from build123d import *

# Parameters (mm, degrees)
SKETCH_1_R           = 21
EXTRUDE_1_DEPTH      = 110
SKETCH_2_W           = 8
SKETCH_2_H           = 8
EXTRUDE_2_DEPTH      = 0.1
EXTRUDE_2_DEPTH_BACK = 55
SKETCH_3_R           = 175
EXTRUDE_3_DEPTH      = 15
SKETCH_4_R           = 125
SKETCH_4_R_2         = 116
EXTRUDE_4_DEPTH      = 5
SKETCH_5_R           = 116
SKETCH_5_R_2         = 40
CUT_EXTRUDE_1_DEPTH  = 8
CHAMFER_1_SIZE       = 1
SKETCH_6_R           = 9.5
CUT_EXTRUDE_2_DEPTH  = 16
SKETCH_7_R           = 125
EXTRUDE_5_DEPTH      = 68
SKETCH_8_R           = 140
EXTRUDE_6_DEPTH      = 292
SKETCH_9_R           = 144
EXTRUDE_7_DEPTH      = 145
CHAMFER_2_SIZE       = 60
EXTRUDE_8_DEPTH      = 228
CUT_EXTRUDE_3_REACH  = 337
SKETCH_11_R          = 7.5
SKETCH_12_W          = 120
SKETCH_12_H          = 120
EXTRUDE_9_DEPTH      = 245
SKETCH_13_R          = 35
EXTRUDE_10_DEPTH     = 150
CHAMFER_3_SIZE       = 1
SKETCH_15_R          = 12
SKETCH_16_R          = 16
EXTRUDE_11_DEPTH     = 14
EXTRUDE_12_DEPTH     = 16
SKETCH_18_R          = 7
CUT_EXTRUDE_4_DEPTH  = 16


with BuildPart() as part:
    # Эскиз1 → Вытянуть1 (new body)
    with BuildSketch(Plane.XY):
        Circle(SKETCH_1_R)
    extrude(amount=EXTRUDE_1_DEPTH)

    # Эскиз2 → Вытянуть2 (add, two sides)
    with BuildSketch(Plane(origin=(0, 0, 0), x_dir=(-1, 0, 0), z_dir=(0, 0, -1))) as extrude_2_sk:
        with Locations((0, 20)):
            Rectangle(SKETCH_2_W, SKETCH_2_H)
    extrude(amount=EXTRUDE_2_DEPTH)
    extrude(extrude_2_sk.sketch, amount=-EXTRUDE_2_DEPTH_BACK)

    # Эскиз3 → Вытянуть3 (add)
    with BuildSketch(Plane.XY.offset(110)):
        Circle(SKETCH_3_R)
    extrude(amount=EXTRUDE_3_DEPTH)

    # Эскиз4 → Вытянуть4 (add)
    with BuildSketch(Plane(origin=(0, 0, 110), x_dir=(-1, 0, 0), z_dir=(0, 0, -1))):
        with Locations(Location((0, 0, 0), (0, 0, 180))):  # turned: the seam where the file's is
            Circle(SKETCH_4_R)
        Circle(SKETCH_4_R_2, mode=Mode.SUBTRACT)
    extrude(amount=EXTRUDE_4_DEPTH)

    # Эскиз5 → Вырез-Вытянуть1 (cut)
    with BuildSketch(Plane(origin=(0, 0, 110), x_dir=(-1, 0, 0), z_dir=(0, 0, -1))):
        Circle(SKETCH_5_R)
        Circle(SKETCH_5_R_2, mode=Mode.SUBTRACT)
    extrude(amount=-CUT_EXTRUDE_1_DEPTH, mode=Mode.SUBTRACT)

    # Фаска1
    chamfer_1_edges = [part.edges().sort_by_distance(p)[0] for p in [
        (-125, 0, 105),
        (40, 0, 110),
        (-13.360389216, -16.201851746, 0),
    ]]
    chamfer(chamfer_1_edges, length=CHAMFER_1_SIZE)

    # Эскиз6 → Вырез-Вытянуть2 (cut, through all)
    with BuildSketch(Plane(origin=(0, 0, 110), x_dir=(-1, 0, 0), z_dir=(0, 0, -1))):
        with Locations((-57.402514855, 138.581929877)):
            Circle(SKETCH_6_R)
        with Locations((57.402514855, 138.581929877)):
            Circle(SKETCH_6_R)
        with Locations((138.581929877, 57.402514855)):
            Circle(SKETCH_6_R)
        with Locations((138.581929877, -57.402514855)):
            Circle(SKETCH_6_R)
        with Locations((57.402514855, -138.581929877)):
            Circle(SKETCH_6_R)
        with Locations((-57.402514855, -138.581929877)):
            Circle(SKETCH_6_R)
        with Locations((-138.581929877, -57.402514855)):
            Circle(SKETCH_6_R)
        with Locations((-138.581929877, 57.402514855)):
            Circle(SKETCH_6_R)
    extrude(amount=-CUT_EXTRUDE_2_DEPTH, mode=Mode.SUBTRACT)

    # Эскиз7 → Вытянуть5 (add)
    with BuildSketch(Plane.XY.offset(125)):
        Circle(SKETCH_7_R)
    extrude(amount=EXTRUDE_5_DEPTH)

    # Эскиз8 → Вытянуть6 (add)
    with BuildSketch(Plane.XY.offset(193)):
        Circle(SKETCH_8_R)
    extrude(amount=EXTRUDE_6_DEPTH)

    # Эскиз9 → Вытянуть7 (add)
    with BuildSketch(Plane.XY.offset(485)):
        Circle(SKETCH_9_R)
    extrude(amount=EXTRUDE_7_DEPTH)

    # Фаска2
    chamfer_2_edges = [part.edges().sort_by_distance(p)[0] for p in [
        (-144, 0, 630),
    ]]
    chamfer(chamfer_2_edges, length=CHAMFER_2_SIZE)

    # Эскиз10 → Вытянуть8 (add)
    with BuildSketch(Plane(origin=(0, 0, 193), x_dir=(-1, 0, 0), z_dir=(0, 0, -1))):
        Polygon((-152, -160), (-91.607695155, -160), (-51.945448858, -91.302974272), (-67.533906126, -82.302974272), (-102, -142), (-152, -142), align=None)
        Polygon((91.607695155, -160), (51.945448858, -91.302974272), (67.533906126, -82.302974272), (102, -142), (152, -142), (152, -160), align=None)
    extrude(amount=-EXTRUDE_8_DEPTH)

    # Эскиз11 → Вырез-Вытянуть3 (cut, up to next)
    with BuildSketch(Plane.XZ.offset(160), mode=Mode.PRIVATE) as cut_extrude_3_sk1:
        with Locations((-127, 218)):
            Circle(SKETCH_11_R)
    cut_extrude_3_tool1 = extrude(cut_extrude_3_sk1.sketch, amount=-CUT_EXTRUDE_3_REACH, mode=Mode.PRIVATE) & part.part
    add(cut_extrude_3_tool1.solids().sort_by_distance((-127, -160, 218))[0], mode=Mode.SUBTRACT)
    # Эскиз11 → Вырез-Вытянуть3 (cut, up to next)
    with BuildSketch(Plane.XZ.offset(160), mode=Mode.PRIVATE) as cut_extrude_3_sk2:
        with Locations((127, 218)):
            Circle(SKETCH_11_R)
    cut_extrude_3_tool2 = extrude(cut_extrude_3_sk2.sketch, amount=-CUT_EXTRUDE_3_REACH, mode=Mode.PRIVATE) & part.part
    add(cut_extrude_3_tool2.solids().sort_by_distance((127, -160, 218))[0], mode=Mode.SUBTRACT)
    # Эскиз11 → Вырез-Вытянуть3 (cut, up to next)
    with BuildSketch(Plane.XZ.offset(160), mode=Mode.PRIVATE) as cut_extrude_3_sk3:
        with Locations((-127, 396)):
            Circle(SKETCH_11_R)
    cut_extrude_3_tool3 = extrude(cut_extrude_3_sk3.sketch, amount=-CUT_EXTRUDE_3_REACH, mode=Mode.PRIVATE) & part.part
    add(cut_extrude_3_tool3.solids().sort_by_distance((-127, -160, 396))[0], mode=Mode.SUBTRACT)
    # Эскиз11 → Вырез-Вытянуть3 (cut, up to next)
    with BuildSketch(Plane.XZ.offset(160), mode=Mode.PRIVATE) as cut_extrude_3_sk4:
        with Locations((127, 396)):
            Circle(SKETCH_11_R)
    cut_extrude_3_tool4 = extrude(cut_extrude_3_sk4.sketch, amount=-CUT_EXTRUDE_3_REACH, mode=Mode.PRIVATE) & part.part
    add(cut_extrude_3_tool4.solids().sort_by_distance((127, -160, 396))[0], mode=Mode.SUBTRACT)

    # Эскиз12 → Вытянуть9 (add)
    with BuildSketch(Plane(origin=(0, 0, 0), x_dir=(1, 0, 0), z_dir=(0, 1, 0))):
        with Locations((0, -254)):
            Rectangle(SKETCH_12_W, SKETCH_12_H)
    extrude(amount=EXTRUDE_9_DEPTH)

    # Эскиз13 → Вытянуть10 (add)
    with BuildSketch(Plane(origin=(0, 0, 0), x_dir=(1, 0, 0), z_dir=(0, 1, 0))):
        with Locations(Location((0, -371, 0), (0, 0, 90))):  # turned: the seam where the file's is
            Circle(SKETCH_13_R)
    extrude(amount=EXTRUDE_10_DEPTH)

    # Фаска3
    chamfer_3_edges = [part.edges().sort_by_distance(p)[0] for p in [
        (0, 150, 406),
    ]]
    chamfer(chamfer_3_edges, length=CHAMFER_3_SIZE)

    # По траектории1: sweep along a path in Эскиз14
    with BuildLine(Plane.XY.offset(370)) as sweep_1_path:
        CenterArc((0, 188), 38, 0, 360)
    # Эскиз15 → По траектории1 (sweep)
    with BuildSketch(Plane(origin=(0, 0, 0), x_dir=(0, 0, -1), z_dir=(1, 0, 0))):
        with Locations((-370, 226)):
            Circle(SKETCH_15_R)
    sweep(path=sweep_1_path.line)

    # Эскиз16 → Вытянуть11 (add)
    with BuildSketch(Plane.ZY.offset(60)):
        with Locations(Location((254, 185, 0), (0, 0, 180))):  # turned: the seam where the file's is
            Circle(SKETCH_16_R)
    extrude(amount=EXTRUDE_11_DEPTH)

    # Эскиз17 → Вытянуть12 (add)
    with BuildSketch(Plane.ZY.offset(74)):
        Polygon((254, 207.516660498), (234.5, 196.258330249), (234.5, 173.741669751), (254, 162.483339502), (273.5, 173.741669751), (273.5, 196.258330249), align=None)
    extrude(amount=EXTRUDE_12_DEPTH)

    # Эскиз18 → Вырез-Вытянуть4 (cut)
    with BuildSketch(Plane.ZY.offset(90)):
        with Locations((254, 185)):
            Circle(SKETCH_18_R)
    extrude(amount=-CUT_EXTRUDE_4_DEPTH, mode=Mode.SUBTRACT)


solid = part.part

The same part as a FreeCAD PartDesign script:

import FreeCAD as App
import Part
import Sketcher
from FreeCAD import Vector
Q = App.Units.Quantity


def edges_at(feature, points):
    """Names of the edges that pass closest to the given points."""
    edges = feature.Shape.Edges
    near = lambda p: min(range(len(edges)), key=lambda i: edges[i].distToShape(Part.Vertex(*p))[0])
    return sorted({f"Edge{near(p) + 1}" for p in points})


def add_polygon(sketch, points):
    """Adds a closed chain of lines whose ends are joined by coincident constraints."""
    first, n = sketch.GeometryCount, len(points)
    for a, b in zip(points, points[1:] + points[:1]):
        sketch.addGeometry(Part.LineSegment(App.Vector(*a, 0), App.Vector(*b, 0)), False)
    for i in range(n):
        sketch.addConstraint(Sketcher.Constraint("Coincident", first + i, 2, first + (i + 1) % n, 1))

doc = App.newDocument("Part")
body = doc.addObject("PartDesign::Body", "Body")

# Sketch on XY plane
sketch1 = body.newObject("Sketcher::SketchObject", "Sketch")
sketch1.AttachmentSupport = (doc.getObject("XY_Plane"), [""])
sketch1.MapMode = "FlatFace"
sketch1.addGeometry(Part.Circle(Vector(0, 0, 0), Vector(0, 0, 1), 21), False)
sketch1.addConstraint([
    Sketcher.Constraint("Coincident", 0, 3, -1, 1),
    Sketcher.Constraint("Diameter", 0, 42.0),
])
pad1 = body.newObject("PartDesign::Pad", "Pad")
pad1.Profile = sketch1
pad1.Length = 110

# Sketch on XY plane
sketch2 = body.newObject("Sketcher::SketchObject", "Sketch001")
sketch2.AttachmentSupport = (doc.getObject("XY_Plane"), [""])
sketch2.MapMode = "FlatFace"
add_polygon(sketch2, [(4, 24), (4, 16), (-4, 16), (-4, 24)])  # lines 0-3
sketch2.addConstraint([
    Sketcher.Constraint("Vertical", 0),
    Sketcher.Constraint("Horizontal", 1),
    Sketcher.Constraint("Vertical", 2),
    Sketcher.Constraint("Horizontal", 3),
    Sketcher.Constraint("Equal", 3, 0),
    Sketcher.Constraint("DistanceX", 1, 2, 1, 1, 8.0),
    Sketcher.Constraint("DistanceX", -1, 1, 0, 2, 4.0),
    Sketcher.Constraint("DistanceY", -1, 1, 0, 2, 16.0),
])
pad2 = body.newObject("PartDesign::Pad", "Pad001")
pad2.Profile = sketch2
pad2.Type = "TwoLengths"
pad2.Length = 0.1
pad2.Length2 = 55
pad2.Reversed = True

# Sketch on XY plane
sketch3 = body.newObject("Sketcher::SketchObject", "Sketch002")
sketch3.AttachmentSupport = (doc.getObject("XY_Plane"), [""])
sketch3.MapMode = "FlatFace"
sketch3.AttachmentOffset = App.Placement(Vector(0, 0, 110), App.Rotation())
sketch3.addGeometry(Part.Circle(Vector(0, 0, 0), Vector(0, 0, 1), 175), False)
sketch3.addConstraint([
    Sketcher.Constraint("Coincident", 0, 3, -1, 1),
    Sketcher.Constraint("Diameter", 0, 350.0),
])
pad3 = body.newObject("PartDesign::Pad", "Pad002")
pad3.Profile = sketch3
pad3.Length = 15

# Sketch on XY plane
sketch4 = body.newObject("Sketcher::SketchObject", "Sketch003")
sketch4.AttachmentSupport = (doc.getObject("XY_Plane"), [""])
sketch4.MapMode = "FlatFace"
sketch4.AttachmentOffset = App.Placement(Vector(0, 0, 110), App.Rotation())
sketch4.addGeometry([
    Part.Circle(Vector(0, 0, 0), Vector(0, 0, 1), 125),
    Part.Circle(Vector(0, 0, 0), Vector(0, 0, 1), 116),
], False)
sketch4.addConstraint([
    Sketcher.Constraint("Coincident", 0, 3, -1, 1),
    Sketcher.Constraint("Coincident", 1, 3, -1, 1),
    Sketcher.Constraint("Diameter", 0, 250.0),
    Sketcher.Constraint("Diameter", 1, 232.0),
])
pad4 = body.newObject("PartDesign::Pad", "Pad003")
pad4.Profile = sketch4
pad4.Length = 5
pad4.Reversed = True

# Sketch on XY plane
sketch5 = body.newObject("Sketcher::SketchObject", "Sketch004")
sketch5.AttachmentSupport = (doc.getObject("XY_Plane"), [""])
sketch5.MapMode = "FlatFace"
sketch5.AttachmentOffset = App.Placement(Vector(0, 0, 110), App.Rotation())
sketch5.addGeometry([
    Part.Circle(Vector(0, 0, 0), Vector(0, 0, 1), 116),
    Part.Circle(Vector(0, 0, 0), Vector(0, 0, 1), 40),
], False)
sketch5.addConstraint([
    Sketcher.Constraint("Coincident", 0, 3, -1, 1),
    Sketcher.Constraint("Coincident", 1, 3, -1, 1),
    Sketcher.Constraint("Diameter", 0, 232.0),
    Sketcher.Constraint("Diameter", 1, 80.0),
])
pocket1 = body.newObject("PartDesign::Pocket", "Pocket")
pocket1.Profile = sketch5
pocket1.Length = 8
pocket1.Reversed = True
doc.recompute()

chamfer = body.newObject("PartDesign::Chamfer", "Chamfer")
chamfer.Base = (pocket1, edges_at(pocket1, [(-125, 0, 105), (40, 0, 110), (-13.36, -16.202, 0)]))
chamfer.Size = 1

# Sketch on XY plane
sketch6 = body.newObject("Sketcher::SketchObject", "Sketch005")
sketch6.AttachmentSupport = (doc.getObject("XY_Plane"), [""])
sketch6.MapMode = "FlatFace"
sketch6.AttachmentOffset = App.Placement(Vector(0, 0, 110), App.Rotation())
sketch6.addGeometry([
    Part.Circle(Vector(57, 139, 0), Vector(0, 0, 1), 10),  # 0
    Part.Circle(Vector(-57, 139, 0), Vector(0, 0, 1), 10),  # 1
    Part.Circle(Vector(-139, 57, 0), Vector(0, 0, 1), 10),  # 2
    Part.Circle(Vector(-139, -57, 0), Vector(0, 0, 1), 10),  # 3
    Part.Circle(Vector(-57, -139, 0), Vector(0, 0, 1), 10),  # 4
    Part.Circle(Vector(57, -139, 0), Vector(0, 0, 1), 10),  # 5
    Part.Circle(Vector(139, -57, 0), Vector(0, 0, 1), 10),  # 6
    Part.Circle(Vector(139, 57, 0), Vector(0, 0, 1), 10),  # 7
], False)
sketch6.addConstraint([
    Sketcher.Constraint("Equal", 0, 1),
    Sketcher.Constraint("Equal", 1, 2),
    Sketcher.Constraint("Equal", 2, 3),
    Sketcher.Constraint("Equal", 3, 4),
    Sketcher.Constraint("Equal", 4, 5),
    Sketcher.Constraint("Equal", 5, 6),
    Sketcher.Constraint("Equal", 6, 7),
    Sketcher.Constraint("Symmetric", 0, 3, 4, 3, -1, 1),
    Sketcher.Constraint("Symmetric", 1, 3, 5, 3, -1, 1),
    Sketcher.Constraint("Symmetric", 2, 3, 6, 3, -1, 1),
    Sketcher.Constraint("Symmetric", 3, 3, 7, 3, -1, 1),
    Sketcher.Constraint("Symmetric", 0, 3, 1, 3, -2),
    Sketcher.Constraint("Symmetric", 3, 3, 6, 3, -2),
    Sketcher.Constraint("Diameter", 0, 19.0),
    Sketcher.Constraint("DistanceY", -1, 1, 0, 3, 138.58193),
    Sketcher.Constraint("DistanceX", 2, 3, -1, 1, 138.58193),
    Sketcher.Constraint("DistanceX", 1, 3, 0, 3, 114.80503),
    Sketcher.Constraint("DistanceY", 3, 3, 2, 3, 114.80503),
])
pocket2 = body.newObject("PartDesign::Pocket", "Pocket001")
pocket2.Profile = sketch6
pocket2.Type = "ThroughAll"
pocket2.Reversed = True

# Sketch on XY plane
sketch7 = body.newObject("Sketcher::SketchObject", "Sketch006")
sketch7.AttachmentSupport = (doc.getObject("XY_Plane"), [""])
sketch7.MapMode = "FlatFace"
sketch7.AttachmentOffset = App.Placement(Vector(0, 0, 125), App.Rotation())
sketch7.addGeometry(Part.Circle(Vector(0, 0, 0), Vector(0, 0, 1), 125), False)
sketch7.addConstraint([
    Sketcher.Constraint("Coincident", 0, 3, -1, 1),
    Sketcher.Constraint("Diameter", 0, 250.0),
])
pad5 = body.newObject("PartDesign::Pad", "Pad004")
pad5.Profile = sketch7
pad5.Length = 68

# Sketch on XY plane
sketch8 = body.newObject("Sketcher::SketchObject", "Sketch007")
sketch8.AttachmentSupport = (doc.getObject("XY_Plane"), [""])
sketch8.MapMode = "FlatFace"
sketch8.AttachmentOffset = App.Placement(Vector(0, 0, 193), App.Rotation())
sketch8.addGeometry(Part.Circle(Vector(0, 0, 0), Vector(0, 0, 1), 140), False)
sketch8.addConstraint([
    Sketcher.Constraint("Coincident", 0, 3, -1, 1),
    Sketcher.Constraint("Diameter", 0, 280.0),
])
pad6 = body.newObject("PartDesign::Pad", "Pad005")
pad6.Profile = sketch8
pad6.Length = 292

# Sketch on XY plane
sketch9 = body.newObject("Sketcher::SketchObject", "Sketch008")
sketch9.AttachmentSupport = (doc.getObject("XY_Plane"), [""])
sketch9.MapMode = "FlatFace"
sketch9.AttachmentOffset = App.Placement(Vector(0, 0, 485), App.Rotation())
sketch9.addGeometry(Part.Circle(Vector(0, 0, 0), Vector(0, 0, 1), 144), False)
sketch9.addConstraint([
    Sketcher.Constraint("Coincident", 0, 3, -1, 1),
    Sketcher.Constraint("Diameter", 0, 288.0),
])
pad7 = body.newObject("PartDesign::Pad", "Pad006")
pad7.Profile = sketch9
pad7.Length = 145
doc.recompute()

chamfer2 = body.newObject("PartDesign::Chamfer", "Chamfer001")
chamfer2.Base = (pad7, edges_at(pad7, [(-144, 0, 630)]))
chamfer2.Size = 60

# Sketch on XY plane
sketch10 = body.newObject("Sketcher::SketchObject", "Sketch009")
sketch10.AttachmentSupport = (doc.getObject("XY_Plane"), [""])
sketch10.MapMode = "FlatFace"
sketch10.AttachmentOffset = App.Placement(Vector(0, 0, 193), App.Rotation())
add_polygon(sketch10, [(152, -160), (92, -160), (52, -91), (68, -82), (102, -142), (152, -142)])  # lines 0-5
add_polygon(sketch10, [(-52, -91), (-92, -160), (-152, -160), (-152, -142), (-102, -142), (-68, -82)])  # lines 6-11
sketch10.addConstraint([
    Sketcher.Constraint("Horizontal", 0),
    Sketcher.Constraint("Horizontal", 4),
    Sketcher.Constraint("Vertical", 5),
    Sketcher.Constraint("Horizontal", 7),
    Sketcher.Constraint("Vertical", 8),
    Sketcher.Constraint("Horizontal", 9),
    Sketcher.Constraint("Symmetric", 0, 2, 6, 2, -2),
    Sketcher.Constraint("Symmetric", 4, 2, 8, 2, -2),
    Sketcher.Constraint("Symmetric", 2, 2, 10, 2, -2),
    Sketcher.Constraint("Symmetric", 1, 2, 11, 2, -2),
    Sketcher.Constraint("Perpendicular", 1, 2),
    Sketcher.Constraint("Perpendicular", 2, 3),
    Sketcher.Constraint("Parallel", 6, 10),
    Sketcher.Constraint("DistanceX", 4, 1, 4, 2, 50.0),
    Sketcher.Constraint("DistanceY", 5, 2, 5, 1, 18.0),
    Sketcher.Constraint("Angle", 1, Q("120 deg")),
    Sketcher.Constraint("Distance", 2, 18.0),
    Sketcher.Constraint("DistanceY", 0, 2, -1, 1, 160.0),
    Sketcher.Constraint("DistanceX", -1, 1, 3, 2, 102.0),
    Sketcher.Constraint("DistanceX", 6, 2, 2, 2, 159.141601),
])
pad8 = body.newObject("PartDesign::Pad", "Pad007")
pad8.Profile = sketch10
pad8.Length = 228

# Sketch on XZ plane
sketch11 = body.newObject("Sketcher::SketchObject", "Sketch010")
sketch11.AttachmentSupport = (doc.getObject("XZ_Plane"), [""])
sketch11.MapMode = "FlatFace"
sketch11.AttachmentOffset = App.Placement(Vector(0, 0, 160), App.Rotation())
sketch11.addGeometry(Part.Circle(Vector(-127, 218, 0), Vector(0, 0, 1), 8), False)
sketch11.addConstraint([
    Sketcher.Constraint("Diameter", 0, 15.0),
    Sketcher.Constraint("DistanceX", 0, 3, -1, 1, 127.0),
    Sketcher.Constraint("DistanceY", -1, 1, 0, 3, 218.0),
])
pocket3 = body.newObject("PartDesign::Pocket", "Pocket002")
pocket3.Profile = sketch11
pocket3.Type = "UpToFirst"

# Sketch on XZ plane
sketch12 = body.newObject("Sketcher::SketchObject", "Sketch011")
sketch12.AttachmentSupport = (doc.getObject("XZ_Plane"), [""])
sketch12.MapMode = "FlatFace"
sketch12.AttachmentOffset = App.Placement(Vector(0, 0, 160), App.Rotation())
sketch12.addGeometry(Part.Circle(Vector(127, 218, 0), Vector(0, 0, 1), 8), False)
sketch12.addConstraint([
    Sketcher.Constraint("Diameter", 0, 15.0),
    Sketcher.Constraint("DistanceX", -1, 1, 0, 3, 127.0),
    Sketcher.Constraint("DistanceY", -1, 1, 0, 3, 218.0),
])
pocket4 = body.newObject("PartDesign::Pocket", "Pocket003")
pocket4.Profile = sketch12
pocket4.Type = "UpToFirst"

# Sketch on XZ plane
sketch13 = body.newObject("Sketcher::SketchObject", "Sketch012")
sketch13.AttachmentSupport = (doc.getObject("XZ_Plane"), [""])
sketch13.MapMode = "FlatFace"
sketch13.AttachmentOffset = App.Placement(Vector(0, 0, 160), App.Rotation())
sketch13.addGeometry(Part.Circle(Vector(-127, 396, 0), Vector(0, 0, 1), 8), False)
sketch13.addConstraint([
    Sketcher.Constraint("Diameter", 0, 15.0),
    Sketcher.Constraint("DistanceX", 0, 3, -1, 1, 127.0),
    Sketcher.Constraint("DistanceY", -1, 1, 0, 3, 396.0),
])
pocket5 = body.newObject("PartDesign::Pocket", "Pocket004")
pocket5.Profile = sketch13
pocket5.Type = "UpToFirst"

# Sketch on XZ plane
sketch14 = body.newObject("Sketcher::SketchObject", "Sketch013")
sketch14.AttachmentSupport = (doc.getObject("XZ_Plane"), [""])
sketch14.MapMode = "FlatFace"
sketch14.AttachmentOffset = App.Placement(Vector(0, 0, 160), App.Rotation())
sketch14.addGeometry(Part.Circle(Vector(127, 396, 0), Vector(0, 0, 1), 8), False)
sketch14.addConstraint([
    Sketcher.Constraint("Diameter", 0, 15.0),
    Sketcher.Constraint("DistanceX", -1, 1, 0, 3, 127.0),
    Sketcher.Constraint("DistanceY", -1, 1, 0, 3, 396.0),
])
pocket6 = body.newObject("PartDesign::Pocket", "Pocket005")
pocket6.Profile = sketch14
pocket6.Type = "UpToFirst"

# Sketch on XZ plane
sketch15 = body.newObject("Sketcher::SketchObject", "Sketch014")
sketch15.AttachmentSupport = (doc.getObject("XZ_Plane"), [""])
sketch15.MapMode = "FlatFace"
add_polygon(sketch15, [(-60, 194), (-60, 314), (60, 314), (60, 194)])  # lines 0-3
sketch15.addConstraint([
    Sketcher.Constraint("Vertical", 0),
    Sketcher.Constraint("Horizontal", 1),
    Sketcher.Constraint("Vertical", 2),
    Sketcher.Constraint("Horizontal", 3),
    Sketcher.Constraint("Equal", 3, 0),
    Sketcher.Constraint("DistanceX", 1, 1, 1, 2, 120.0),
    Sketcher.Constraint("DistanceX", 0, 2, -1, 1, 60.0),
    Sketcher.Constraint("DistanceY", -1, 1, 0, 2, 314.0),
])
pad9 = body.newObject("PartDesign::Pad", "Pad008")
pad9.Profile = sketch15
pad9.Length = 245
pad9.Reversed = True

# Sketch on XZ plane
sketch16 = body.newObject("Sketcher::SketchObject", "Sketch015")
sketch16.AttachmentSupport = (doc.getObject("XZ_Plane"), [""])
sketch16.MapMode = "FlatFace"
sketch16.addGeometry(Part.Circle(Vector(0, 371, 0), Vector(0, 0, 1), 35), False)
sketch16.addConstraint([
    Sketcher.Constraint("PointOnObject", 0, 3, -2),
    Sketcher.Constraint("Diameter", 0, 70.0),
    Sketcher.Constraint("DistanceY", -1, 1, 0, 3, 371.0),
])
pad10 = body.newObject("PartDesign::Pad", "Pad009")
pad10.Profile = sketch16
pad10.Length = 150
pad10.Reversed = True
doc.recompute()

chamfer3 = body.newObject("PartDesign::Chamfer", "Chamfer002")
chamfer3.Base = (pad10, edges_at(pad10, [(0, 150, 406)]))
chamfer3.Size = 1

# Sketch on YZ plane
sketch17 = body.newObject("Sketcher::SketchObject", "Sketch016")
sketch17.AttachmentSupport = (doc.getObject("YZ_Plane"), [""])
sketch17.MapMode = "FlatFace"
sketch17.addGeometry(Part.Circle(Vector(226, 370, 0), Vector(0, 0, 1), 12), False)
sketch17.addConstraint([
    Sketcher.Constraint("Diameter", 0, 24.0),
    Sketcher.Constraint("DistanceX", -1, 1, 0, 3, 226.0),
    Sketcher.Constraint("DistanceY", -1, 1, 0, 3, 370.0),
])

# Sketch on XY plane
sketch18 = body.newObject("Sketcher::SketchObject", "Sketch017")
sketch18.AttachmentSupport = (doc.getObject("XY_Plane"), [""])
sketch18.MapMode = "FlatFace"
sketch18.AttachmentOffset = App.Placement(Vector(0, 0, 370), App.Rotation())
sketch18.addGeometry(Part.Circle(Vector(0, 188, 0), Vector(0, 0, 1), 38), False)
sketch18.addConstraint([
    Sketcher.Constraint("PointOnObject", 0, 3, -2),
    Sketcher.Constraint("Diameter", 0, 76.0),
    Sketcher.Constraint("DistanceY", -1, 1, 0, 3, 188.0),
])
doc.recompute()

additivepipe = body.newObject("PartDesign::AdditivePipe", "AdditivePipe")
additivepipe.Profile = sketch17
additivepipe.Spine = (sketch18, ["Edge1"])

# Sketch on YZ plane
sketch19 = body.newObject("Sketcher::SketchObject", "Sketch018")
sketch19.AttachmentSupport = (doc.getObject("YZ_Plane"), [""])
sketch19.MapMode = "FlatFace"
sketch19.AttachmentOffset = App.Placement(Vector(0, 0, -60), App.Rotation())
sketch19.addGeometry(Part.Circle(Vector(185, 254, 0), Vector(0, 0, 1), 16), False)
sketch19.addConstraint([
    Sketcher.Constraint("Diameter", 0, 32.0),
    Sketcher.Constraint("DistanceX", -1, 1, 0, 3, 185.0),
    Sketcher.Constraint("DistanceY", -1, 1, 0, 3, 254.0),
])
pad11 = body.newObject("PartDesign::Pad", "Pad010")
pad11.Profile = sketch19
pad11.Length = 14
pad11.Reversed = True

# Sketch on YZ plane
sketch20 = body.newObject("Sketcher::SketchObject", "Sketch019")
sketch20.AttachmentSupport = (doc.getObject("YZ_Plane"), [""])
sketch20.MapMode = "FlatFace"
sketch20.AttachmentOffset = App.Placement(Vector(0, 0, -74), App.Rotation())
add_polygon(sketch20, [(208, 254), (196, 234), (174, 234), (162, 254), (174, 274), (196, 274)])  # lines 0-5
sketch20.addConstraint([
    Sketcher.Constraint("Horizontal", 1),
    Sketcher.Constraint("Horizontal", 4),
    Sketcher.Constraint("Parallel", 0, 3),
    Sketcher.Constraint("Parallel", 2, 5),
    Sketcher.Constraint("Horizontal", 2, 2, 5, 2),
    Sketcher.Constraint("Vertical", 1, 2, 3, 2),
    Sketcher.Constraint("Vertical", 0, 2, 4, 2),
    Sketcher.Constraint("Angle", 0, Q("-120 deg")),
    Sketcher.Constraint("DistanceY", -1, 1, 2, 2, 254.0),
    Sketcher.Constraint("DistanceY", 1, 2, 3, 2, 39.0),
    Sketcher.Constraint("DistanceX", 1, 2, 1, 1, 22.51666),
    Sketcher.Constraint("DistanceX", -1, 1, 0, 2, 196.25833),
])
pad12 = body.newObject("PartDesign::Pad", "Pad011")
pad12.Profile = sketch20
pad12.Length = 16
pad12.Reversed = True

# Sketch on YZ plane
sketch21 = body.newObject("Sketcher::SketchObject", "Sketch020")
sketch21.AttachmentSupport = (doc.getObject("YZ_Plane"), [""])
sketch21.MapMode = "FlatFace"
sketch21.AttachmentOffset = App.Placement(Vector(0, 0, -90), App.Rotation())
sketch21.addGeometry(Part.Circle(Vector(185, 254, 0), Vector(0, 0, 1), 7), False)
sketch21.addConstraint([
    Sketcher.Constraint("Diameter", 0, 14.0),
    Sketcher.Constraint("DistanceX", -1, 1, 0, 3, 185.0),
    Sketcher.Constraint("DistanceY", -1, 1, 0, 3, 254.0),
])
pocket7 = body.newObject("PartDesign::Pocket", "Pocket006")
pocket7.Profile = sketch21
pocket7.Length = 16
pocket7.Reversed = True

doc.recompute()
